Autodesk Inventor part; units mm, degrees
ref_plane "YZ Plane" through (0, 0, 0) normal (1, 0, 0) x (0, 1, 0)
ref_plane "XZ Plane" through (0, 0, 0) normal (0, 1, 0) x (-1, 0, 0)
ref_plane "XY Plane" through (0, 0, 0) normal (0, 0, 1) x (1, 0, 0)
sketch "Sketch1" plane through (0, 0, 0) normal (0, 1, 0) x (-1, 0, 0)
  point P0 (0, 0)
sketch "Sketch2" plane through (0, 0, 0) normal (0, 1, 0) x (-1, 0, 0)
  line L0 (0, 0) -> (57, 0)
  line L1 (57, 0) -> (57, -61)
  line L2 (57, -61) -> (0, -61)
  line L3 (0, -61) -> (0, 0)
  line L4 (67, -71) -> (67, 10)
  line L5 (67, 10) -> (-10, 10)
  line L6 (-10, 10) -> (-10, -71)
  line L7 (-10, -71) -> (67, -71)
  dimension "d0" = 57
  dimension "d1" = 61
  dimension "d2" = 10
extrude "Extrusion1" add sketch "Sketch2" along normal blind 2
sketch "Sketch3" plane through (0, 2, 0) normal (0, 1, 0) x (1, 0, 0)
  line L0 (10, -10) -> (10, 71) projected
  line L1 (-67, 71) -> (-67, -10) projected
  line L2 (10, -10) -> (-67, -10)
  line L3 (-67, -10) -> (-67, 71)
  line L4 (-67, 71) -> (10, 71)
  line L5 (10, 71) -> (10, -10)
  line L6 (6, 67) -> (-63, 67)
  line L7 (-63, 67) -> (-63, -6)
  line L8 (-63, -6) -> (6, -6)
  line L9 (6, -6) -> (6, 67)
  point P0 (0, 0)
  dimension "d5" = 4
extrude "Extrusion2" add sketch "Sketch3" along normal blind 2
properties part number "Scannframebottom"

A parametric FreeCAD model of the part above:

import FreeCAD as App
import Part
import Sketcher

V = App.Vector
Q = App.Units.Quantity

doc = App.newDocument("Part")
body = doc.addObject("PartDesign::Body", "Body")

sketch1 = doc.addObject("Sketcher::SketchObject", "Sketch")
body.addObject(sketch1)
sketch1.AttachmentSupport = (doc.XZ_Plane, [""])
sketch1.MapMode = "FlatFace"
sketch1.addGeometry([
    Part.LineSegment(V(10, -71, 0), V(-67, -71, 0)),
    Part.LineSegment(V(-67, -71, 0), V(-67, 10, 0)),
    Part.LineSegment(V(-67, 10, 0), V(10, 10, 0)),
    Part.LineSegment(V(10, 10, 0), V(10, -71, 0)),
    Part.LineSegment(V(0, -61, 0), V(0, 0, 0)),
    Part.LineSegment(V(0, 0, 0), V(-57, 0, 0)),
    Part.LineSegment(V(-57, 0, 0), V(-57, -61, 0)),
    Part.LineSegment(V(-57, -61, 0), V(0, -61, 0)),
], False)
sketch1.addConstraint([
    Sketcher.Constraint("Coincident", 0, 2, 1, 1),
    Sketcher.Constraint("Coincident", 1, 2, 2, 1),
    Sketcher.Constraint("Coincident", 2, 2, 3, 1),
    Sketcher.Constraint("Coincident", 3, 2, 0, 1),
    Sketcher.Constraint("Coincident", 4, 2, 5, 1),
    Sketcher.Constraint("Coincident", 5, 2, 6, 1),
    Sketcher.Constraint("Coincident", 6, 2, 7, 1),
    Sketcher.Constraint("Coincident", 7, 2, 4, 1),
    Sketcher.Constraint("Horizontal", 0),
    Sketcher.Constraint("Vertical", 1),
    Sketcher.Constraint("Horizontal", 2),
    Sketcher.Constraint("Vertical", 3),
    Sketcher.Constraint("Vertical", 4),
    Sketcher.Constraint("Horizontal", 5),
    Sketcher.Constraint("Vertical", 6),
    Sketcher.Constraint("Horizontal", 7),
    Sketcher.Constraint("Coincident", 4, 2, -1, 1),
    Sketcher.Constraint("DistanceX", 5, 2, 5, 1, Q("57 mm")),
    Sketcher.Constraint("DistanceY", 4, 1, 4, 2, Q("61 mm")),
    Sketcher.Constraint("DistanceY", -1, 1, 1, 2, Q("10 mm")),
    Sketcher.Constraint("DistanceX", -1, 1, 2, 2, Q("10 mm")),
    Sketcher.Constraint("DistanceX", 1, 2, 5, 2, Q("10 mm")),
    Sketcher.Constraint("DistanceY", 0, 2, 6, 2, Q("10 mm")),
])
pad1 = doc.addObject("PartDesign::Pad", "Pad")
body.addObject(pad1)
pad1.Profile = sketch1
pad1.Length = 2
pad1.Reversed = True

sketch2 = doc.addObject("Sketcher::SketchObject", "Sketch001")
body.addObject(sketch2)
sketch2.AttachmentSupport = (doc.XZ_Plane, [""])
sketch2.MapMode = "FlatFace"
sketch2.AttachmentOffset = App.Placement(V(0, 0, -2), App.Rotation())
sketch2.addGeometry([
    Part.LineSegment(V(-67, 10, 0), V(10, 10, 0)),
    Part.LineSegment(V(10, 10, 0), V(10, -71, 0)),
    Part.LineSegment(V(10, -71, 0), V(-67, -71, 0)),
    Part.LineSegment(V(-67, -71, 0), V(-67, 10, 0)),
    Part.LineSegment(V(-63, -67, 0), V(6, -67, 0)),
    Part.LineSegment(V(6, -67, 0), V(6, 6, 0)),
    Part.LineSegment(V(6, 6, 0), V(-63, 6, 0)),
    Part.LineSegment(V(-63, 6, 0), V(-63, -67, 0)),
], False)
sketch2.addConstraint([
    Sketcher.Constraint("Coincident", 0, 2, 1, 1),
    Sketcher.Constraint("Coincident", 1, 2, 2, 1),
    Sketcher.Constraint("Coincident", 2, 2, 3, 1),
    Sketcher.Constraint("Coincident", 3, 2, 0, 1),
    Sketcher.Constraint("Coincident", 4, 2, 5, 1),
    Sketcher.Constraint("Coincident", 5, 2, 6, 1),
    Sketcher.Constraint("Coincident", 6, 2, 7, 1),
    Sketcher.Constraint("Coincident", 7, 2, 4, 1),
    Sketcher.Constraint("Horizontal", 0),
    Sketcher.Constraint("Vertical", 1),
    Sketcher.Constraint("Horizontal", 2),
    Sketcher.Constraint("Vertical", 3),
    Sketcher.Constraint("Horizontal", 4),
    Sketcher.Constraint("Vertical", 5),
    Sketcher.Constraint("Horizontal", 6),
    Sketcher.Constraint("Vertical", 7),
    Sketcher.Constraint("DistanceX", 4, 2, 1, 2, Q("4 mm")),
    Sketcher.Constraint("DistanceY", 1, 2, 4, 2, Q("4 mm")),
    Sketcher.Constraint("DistanceY", 5, 2, 0, 2, Q("4 mm")),
    Sketcher.Constraint("DistanceX", 3, 2, 6, 2, Q("4 mm")),
    Sketcher.Constraint("DistanceX", 0, 1, 0, 2, Q("77 mm")),
    Sketcher.Constraint("DistanceY", 1, 2, 1, 1, Q("81 mm")),
    Sketcher.Constraint("DistanceX", -1, 1, 0, 2, Q("10 mm")),
    Sketcher.Constraint("DistanceY", -1, 1, 0, 2, Q("10 mm")),
])
pad2 = doc.addObject("PartDesign::Pad", "Pad001")
body.addObject(pad2)
pad2.Profile = sketch2
pad2.Length = 2
pad2.Reversed = True

doc.recompute()
